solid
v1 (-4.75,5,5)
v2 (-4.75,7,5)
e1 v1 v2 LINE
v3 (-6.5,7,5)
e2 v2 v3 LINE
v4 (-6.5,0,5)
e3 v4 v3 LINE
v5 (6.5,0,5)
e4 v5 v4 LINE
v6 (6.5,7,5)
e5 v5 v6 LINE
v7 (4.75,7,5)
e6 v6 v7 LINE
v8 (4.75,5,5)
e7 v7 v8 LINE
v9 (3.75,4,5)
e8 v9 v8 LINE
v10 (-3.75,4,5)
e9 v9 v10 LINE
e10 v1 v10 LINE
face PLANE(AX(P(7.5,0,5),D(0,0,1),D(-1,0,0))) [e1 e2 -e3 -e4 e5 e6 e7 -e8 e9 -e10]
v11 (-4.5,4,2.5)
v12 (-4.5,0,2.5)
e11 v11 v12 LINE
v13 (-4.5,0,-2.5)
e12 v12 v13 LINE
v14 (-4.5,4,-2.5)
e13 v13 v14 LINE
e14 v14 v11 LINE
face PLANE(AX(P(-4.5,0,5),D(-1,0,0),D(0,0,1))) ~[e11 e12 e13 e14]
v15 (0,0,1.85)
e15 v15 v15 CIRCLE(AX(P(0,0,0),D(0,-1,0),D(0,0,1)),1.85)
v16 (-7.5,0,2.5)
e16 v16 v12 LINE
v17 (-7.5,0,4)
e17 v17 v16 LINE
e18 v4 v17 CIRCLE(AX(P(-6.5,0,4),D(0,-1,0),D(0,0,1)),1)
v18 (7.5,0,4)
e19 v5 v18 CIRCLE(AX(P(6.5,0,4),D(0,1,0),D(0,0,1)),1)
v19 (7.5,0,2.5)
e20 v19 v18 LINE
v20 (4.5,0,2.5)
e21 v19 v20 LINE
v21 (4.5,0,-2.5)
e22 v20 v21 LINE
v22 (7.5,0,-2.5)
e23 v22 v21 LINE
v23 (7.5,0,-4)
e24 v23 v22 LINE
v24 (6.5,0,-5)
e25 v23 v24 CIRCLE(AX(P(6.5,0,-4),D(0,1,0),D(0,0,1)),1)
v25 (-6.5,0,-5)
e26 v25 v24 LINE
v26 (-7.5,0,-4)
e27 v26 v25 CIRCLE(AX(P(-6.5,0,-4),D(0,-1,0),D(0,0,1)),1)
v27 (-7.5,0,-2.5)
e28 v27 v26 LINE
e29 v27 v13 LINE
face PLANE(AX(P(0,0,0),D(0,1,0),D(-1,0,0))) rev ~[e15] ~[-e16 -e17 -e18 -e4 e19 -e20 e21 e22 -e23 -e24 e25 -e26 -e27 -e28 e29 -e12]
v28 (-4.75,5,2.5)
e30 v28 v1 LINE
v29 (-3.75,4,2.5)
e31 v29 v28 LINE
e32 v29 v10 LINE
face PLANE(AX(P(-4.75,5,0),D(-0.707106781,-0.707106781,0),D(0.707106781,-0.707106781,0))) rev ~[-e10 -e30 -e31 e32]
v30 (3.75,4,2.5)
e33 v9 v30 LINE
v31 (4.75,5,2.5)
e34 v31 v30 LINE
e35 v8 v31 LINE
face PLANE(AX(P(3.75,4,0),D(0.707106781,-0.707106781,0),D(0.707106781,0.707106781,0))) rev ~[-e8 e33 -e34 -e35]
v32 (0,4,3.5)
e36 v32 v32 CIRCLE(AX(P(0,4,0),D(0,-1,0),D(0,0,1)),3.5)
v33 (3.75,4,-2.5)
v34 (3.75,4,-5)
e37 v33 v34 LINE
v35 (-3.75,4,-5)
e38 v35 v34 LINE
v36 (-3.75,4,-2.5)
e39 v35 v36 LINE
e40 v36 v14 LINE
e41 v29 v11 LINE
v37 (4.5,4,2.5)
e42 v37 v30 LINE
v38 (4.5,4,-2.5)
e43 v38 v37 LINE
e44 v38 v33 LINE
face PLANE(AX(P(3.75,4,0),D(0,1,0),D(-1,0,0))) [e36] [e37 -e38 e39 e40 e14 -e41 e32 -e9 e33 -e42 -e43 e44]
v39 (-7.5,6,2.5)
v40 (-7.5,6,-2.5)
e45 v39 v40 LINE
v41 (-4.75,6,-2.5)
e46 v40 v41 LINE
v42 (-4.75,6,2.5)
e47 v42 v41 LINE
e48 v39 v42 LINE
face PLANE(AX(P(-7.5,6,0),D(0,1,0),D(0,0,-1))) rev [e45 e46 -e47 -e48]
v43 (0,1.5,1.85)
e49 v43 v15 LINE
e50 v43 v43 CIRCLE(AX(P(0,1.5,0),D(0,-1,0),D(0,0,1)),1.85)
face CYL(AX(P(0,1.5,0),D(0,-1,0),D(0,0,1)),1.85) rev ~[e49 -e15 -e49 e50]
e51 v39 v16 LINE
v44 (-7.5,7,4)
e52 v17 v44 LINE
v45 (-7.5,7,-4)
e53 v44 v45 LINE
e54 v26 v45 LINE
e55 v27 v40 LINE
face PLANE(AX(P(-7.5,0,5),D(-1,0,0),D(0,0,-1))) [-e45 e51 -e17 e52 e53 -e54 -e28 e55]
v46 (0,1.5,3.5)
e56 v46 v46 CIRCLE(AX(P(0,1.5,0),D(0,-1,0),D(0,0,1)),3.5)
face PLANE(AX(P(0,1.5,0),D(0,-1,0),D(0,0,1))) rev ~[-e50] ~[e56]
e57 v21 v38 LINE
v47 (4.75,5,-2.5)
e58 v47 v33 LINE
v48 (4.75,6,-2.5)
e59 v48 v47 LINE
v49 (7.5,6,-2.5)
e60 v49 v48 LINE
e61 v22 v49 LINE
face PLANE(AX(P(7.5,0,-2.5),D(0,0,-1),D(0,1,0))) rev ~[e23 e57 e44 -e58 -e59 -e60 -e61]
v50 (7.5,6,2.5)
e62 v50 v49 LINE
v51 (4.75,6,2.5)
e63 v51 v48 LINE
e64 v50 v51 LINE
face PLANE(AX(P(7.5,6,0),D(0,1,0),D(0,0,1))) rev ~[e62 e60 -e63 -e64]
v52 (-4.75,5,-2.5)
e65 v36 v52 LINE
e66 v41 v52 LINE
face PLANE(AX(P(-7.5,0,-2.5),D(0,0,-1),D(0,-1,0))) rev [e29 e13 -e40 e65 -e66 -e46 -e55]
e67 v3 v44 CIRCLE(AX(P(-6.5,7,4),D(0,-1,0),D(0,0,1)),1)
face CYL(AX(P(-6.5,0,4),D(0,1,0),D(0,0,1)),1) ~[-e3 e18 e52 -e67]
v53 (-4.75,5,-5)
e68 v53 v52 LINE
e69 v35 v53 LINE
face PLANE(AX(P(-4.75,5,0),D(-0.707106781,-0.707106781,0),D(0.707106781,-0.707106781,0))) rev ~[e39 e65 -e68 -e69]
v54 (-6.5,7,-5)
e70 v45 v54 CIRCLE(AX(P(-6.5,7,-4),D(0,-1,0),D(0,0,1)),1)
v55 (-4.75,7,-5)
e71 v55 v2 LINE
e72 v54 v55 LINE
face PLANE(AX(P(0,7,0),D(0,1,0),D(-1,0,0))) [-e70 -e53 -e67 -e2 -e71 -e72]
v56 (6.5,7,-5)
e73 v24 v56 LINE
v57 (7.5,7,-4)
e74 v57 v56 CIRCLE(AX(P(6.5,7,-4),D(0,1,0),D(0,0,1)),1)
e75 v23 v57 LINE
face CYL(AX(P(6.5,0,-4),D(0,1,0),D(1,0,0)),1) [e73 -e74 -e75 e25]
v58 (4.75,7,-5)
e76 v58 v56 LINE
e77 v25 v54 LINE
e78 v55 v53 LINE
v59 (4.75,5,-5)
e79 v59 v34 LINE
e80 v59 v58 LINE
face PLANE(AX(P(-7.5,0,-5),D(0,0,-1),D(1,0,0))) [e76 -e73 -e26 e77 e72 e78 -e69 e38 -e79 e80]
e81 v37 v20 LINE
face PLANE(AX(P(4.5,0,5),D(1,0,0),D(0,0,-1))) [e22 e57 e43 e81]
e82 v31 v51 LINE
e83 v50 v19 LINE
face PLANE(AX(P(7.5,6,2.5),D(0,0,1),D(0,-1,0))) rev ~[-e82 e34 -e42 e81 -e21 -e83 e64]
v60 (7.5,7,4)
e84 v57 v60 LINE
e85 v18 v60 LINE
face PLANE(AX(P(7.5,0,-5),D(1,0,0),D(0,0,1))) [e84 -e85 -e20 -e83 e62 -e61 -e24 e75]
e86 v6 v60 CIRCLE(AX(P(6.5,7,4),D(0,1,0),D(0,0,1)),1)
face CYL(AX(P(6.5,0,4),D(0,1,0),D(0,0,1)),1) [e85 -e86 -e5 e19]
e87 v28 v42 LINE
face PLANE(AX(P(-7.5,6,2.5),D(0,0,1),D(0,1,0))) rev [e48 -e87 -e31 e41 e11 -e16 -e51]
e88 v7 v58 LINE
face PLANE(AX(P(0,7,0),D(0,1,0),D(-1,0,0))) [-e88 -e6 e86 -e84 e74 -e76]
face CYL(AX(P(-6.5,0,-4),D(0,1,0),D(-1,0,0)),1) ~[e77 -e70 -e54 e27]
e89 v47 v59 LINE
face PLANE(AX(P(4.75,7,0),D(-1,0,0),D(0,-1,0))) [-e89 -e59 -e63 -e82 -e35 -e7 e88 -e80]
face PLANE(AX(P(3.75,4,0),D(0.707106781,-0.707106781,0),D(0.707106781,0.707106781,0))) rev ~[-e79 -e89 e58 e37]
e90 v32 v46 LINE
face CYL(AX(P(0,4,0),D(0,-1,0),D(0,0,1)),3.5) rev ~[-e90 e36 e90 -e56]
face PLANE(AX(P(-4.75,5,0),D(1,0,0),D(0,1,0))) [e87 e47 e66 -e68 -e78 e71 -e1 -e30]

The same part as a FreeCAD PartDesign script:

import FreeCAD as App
import Part
import Sketcher


def edges_at(feature, points):
    """Names of the edges that pass closest to the given points."""
    edges = feature.Shape.Edges
    near = lambda p: min(range(len(edges)), key=lambda i: edges[i].distToShape(Part.Vertex(*p))[0])
    return sorted({f"Edge{near(p) + 1}" for p in points})


def add_polygon(sketch, points):
    """Adds a closed chain of lines whose ends are joined by coincident constraints."""
    first, n = sketch.GeometryCount, len(points)
    for a, b in zip(points, points[1:] + points[:1]):
        sketch.addGeometry(Part.LineSegment(App.Vector(*a, 0), App.Vector(*b, 0)), False)
    for i in range(n):
        sketch.addConstraint(Sketcher.Constraint("Coincident", first + i, 2, first + (i + 1) % n, 1))

doc = App.newDocument("Part")
body = doc.addObject("PartDesign::Body", "Body")

sketch1 = body.newObject("Sketcher::SketchObject", "Sketch")
sketch1.AttachmentSupport = (doc.getObject("XZ_Plane"), [""])
sketch1.MapMode = "FlatFace"
add_polygon(sketch1, [(-7.5, 5), (7.5, 5), (7.5, -5), (-7.5, -5)])
sketch1.addConstraint([
    Sketcher.Constraint("Horizontal", 0),
    Sketcher.Constraint("Vertical", 1),
    Sketcher.Constraint("Horizontal", 2),
    Sketcher.Constraint("Vertical", 3),
    Sketcher.Constraint("Symmetric", 0, 2, 2, 2, -1, 1),
    Sketcher.Constraint("DistanceX", 0, 1, 0, 2, 15.0),
    Sketcher.Constraint("DistanceY", 1, 2, 1, 1, 10.0),
])
pad1 = body.newObject("PartDesign::Pad", "Pad")
pad1.Profile = sketch1
pad1.Length = 7
pad1.Reversed = True

sketch2 = body.newObject("Sketcher::SketchObject", "Sketch001")
sketch2.AttachmentSupport = (doc.getObject("XY_Plane"), [""])
sketch2.MapMode = "FlatFace"
add_polygon(sketch2, [(4.75, 7), (-4.75, 7), (-4.75, 5), (-3.75, 4), (3.75, 4), (4.75, 5)])
sketch2.addConstraint([
    Sketcher.Constraint("Horizontal", 0),
    Sketcher.Constraint("Vertical", 1),
    Sketcher.Constraint("Horizontal", 3),
    Sketcher.Constraint("Vertical", 5),
    Sketcher.Constraint("Symmetric", 1, 2, 4, 2, -2),
    Sketcher.Constraint("Perpendicular", 2, 4),
    Sketcher.Constraint("Equal", 2, 4),
    Sketcher.Constraint("DistanceX", 0, 2, 0, 1, 9.5),
    Sketcher.Constraint("DistanceX", 1, 2, 2, 2, 1.0),
    Sketcher.Constraint("DistanceY", 2, 2, 0, 2, 3.0),
    Sketcher.Constraint("DistanceY", -1, 1, 0, 2, 7.0),
])
pocket1 = body.newObject("PartDesign::Pocket", "Pocket")
pocket1.Profile = sketch2
pocket1.Type = "ThroughAll"
pocket1.Midplane = True

sketch3 = body.newObject("Sketcher::SketchObject", "Sketch002")
sketch3.AttachmentSupport = (doc.getObject("YZ_Plane"), [""])
sketch3.MapMode = "FlatFace"
sketch3.AttachmentOffset = App.Placement(App.Vector(0, 0, 7.5), App.Rotation())
add_polygon(sketch3, [(6, 2.5), (0, 2.5), (0, -2.5), (6, -2.5)])
sketch3.addConstraint([
    Sketcher.Constraint("Horizontal", 0),
    Sketcher.Constraint("Vertical", 1),
    Sketcher.Constraint("Horizontal", 2),
    Sketcher.Constraint("Vertical", 3),
    Sketcher.Constraint("Symmetric", 0, 2, 1, 2, -1, 1),
    Sketcher.Constraint("DistanceX", 0, 2, 0, 1, 6.0),
    Sketcher.Constraint("DistanceY", 1, 2, 1, 1, 5.0),
])
pocket2 = body.newObject("PartDesign::Pocket", "Pocket001")
pocket2.Profile = sketch3
pocket2.Length = 3
doc.recompute()

mirrored = body.newObject("PartDesign::Mirrored", "Mirrored")
mirrored.Originals = [pocket2]
mirrored.MirrorPlane = (doc.getObject("YZ_Plane"), [""])
body.Tip = mirrored

sketch4 = body.newObject("Sketcher::SketchObject", "Sketch003")
sketch4.AttachmentSupport = (doc.getObject("YZ_Plane"), [""])
sketch4.MapMode = "FlatFace"
sketch4.AttachmentOffset = App.Placement(App.Vector(0, 0, 4.5), App.Rotation())
add_polygon(sketch4, [(4.75, -2.5), (4.75, 2.5), (4, 2.5), (4, -2.5)])
sketch4.addConstraint([
    Sketcher.Constraint("Vertical", 0),
    Sketcher.Constraint("Horizontal", 1),
    Sketcher.Constraint("Vertical", 2),
    Sketcher.Constraint("Horizontal", 3),
    Sketcher.Constraint("DistanceY", 0, 1, 0, 2, 5.0),
    Sketcher.Constraint("DistanceX", -1, 1, 1, 2, 4.0),
    Sketcher.Constraint("DistanceX", 1, 2, 1, 1, 0.75),
    Sketcher.Constraint("DistanceY", -1, 1, 0, 2, 2.5),
])
pocket3 = body.newObject("PartDesign::Pocket", "Pocket002")
pocket3.Profile = sketch4
pocket3.Type = "ThroughAll"

sketch5 = body.newObject("Sketcher::SketchObject", "Sketch004")
sketch5.AttachmentSupport = (doc.getObject("XZ_Plane"), [""])
sketch5.MapMode = "FlatFace"
sketch5.AttachmentOffset = App.Placement(App.Vector(0, 0, -4), App.Rotation())
sketch5.addGeometry(Part.Circle(App.Vector(0, 0, 0), App.Vector(0, 0, 1), 1.85), False)
sketch5.addConstraint([
    Sketcher.Constraint("Coincident", 0, 3, -1, 1),
    Sketcher.Constraint("Diameter", 0, 3.7),
])
doc.recompute()
hole = body.newObject("PartDesign::Hole", "Hole")
hole.Profile = sketch5
hole.ThreadType = "None"
hole.Diameter = 3.7
hole.DepthType = "ThroughAll"
hole.HoleCutType = "Counterbore"
hole.HoleCutDiameter = 7
hole.HoleCutDepth = 2.5
hole.Reversed = True
doc.recompute()

fillet = body.newObject("PartDesign::Fillet", "Fillet")
fillet.Base = (hole, edges_at(hole, [
    (7.5, 3.5, -5),
    (7.5, 3.5, 5),
    (-7.5, 3.5, -5),
    (-7.5, 3.5, 5),
]))
fillet.Radius = 1

doc.recompute()
